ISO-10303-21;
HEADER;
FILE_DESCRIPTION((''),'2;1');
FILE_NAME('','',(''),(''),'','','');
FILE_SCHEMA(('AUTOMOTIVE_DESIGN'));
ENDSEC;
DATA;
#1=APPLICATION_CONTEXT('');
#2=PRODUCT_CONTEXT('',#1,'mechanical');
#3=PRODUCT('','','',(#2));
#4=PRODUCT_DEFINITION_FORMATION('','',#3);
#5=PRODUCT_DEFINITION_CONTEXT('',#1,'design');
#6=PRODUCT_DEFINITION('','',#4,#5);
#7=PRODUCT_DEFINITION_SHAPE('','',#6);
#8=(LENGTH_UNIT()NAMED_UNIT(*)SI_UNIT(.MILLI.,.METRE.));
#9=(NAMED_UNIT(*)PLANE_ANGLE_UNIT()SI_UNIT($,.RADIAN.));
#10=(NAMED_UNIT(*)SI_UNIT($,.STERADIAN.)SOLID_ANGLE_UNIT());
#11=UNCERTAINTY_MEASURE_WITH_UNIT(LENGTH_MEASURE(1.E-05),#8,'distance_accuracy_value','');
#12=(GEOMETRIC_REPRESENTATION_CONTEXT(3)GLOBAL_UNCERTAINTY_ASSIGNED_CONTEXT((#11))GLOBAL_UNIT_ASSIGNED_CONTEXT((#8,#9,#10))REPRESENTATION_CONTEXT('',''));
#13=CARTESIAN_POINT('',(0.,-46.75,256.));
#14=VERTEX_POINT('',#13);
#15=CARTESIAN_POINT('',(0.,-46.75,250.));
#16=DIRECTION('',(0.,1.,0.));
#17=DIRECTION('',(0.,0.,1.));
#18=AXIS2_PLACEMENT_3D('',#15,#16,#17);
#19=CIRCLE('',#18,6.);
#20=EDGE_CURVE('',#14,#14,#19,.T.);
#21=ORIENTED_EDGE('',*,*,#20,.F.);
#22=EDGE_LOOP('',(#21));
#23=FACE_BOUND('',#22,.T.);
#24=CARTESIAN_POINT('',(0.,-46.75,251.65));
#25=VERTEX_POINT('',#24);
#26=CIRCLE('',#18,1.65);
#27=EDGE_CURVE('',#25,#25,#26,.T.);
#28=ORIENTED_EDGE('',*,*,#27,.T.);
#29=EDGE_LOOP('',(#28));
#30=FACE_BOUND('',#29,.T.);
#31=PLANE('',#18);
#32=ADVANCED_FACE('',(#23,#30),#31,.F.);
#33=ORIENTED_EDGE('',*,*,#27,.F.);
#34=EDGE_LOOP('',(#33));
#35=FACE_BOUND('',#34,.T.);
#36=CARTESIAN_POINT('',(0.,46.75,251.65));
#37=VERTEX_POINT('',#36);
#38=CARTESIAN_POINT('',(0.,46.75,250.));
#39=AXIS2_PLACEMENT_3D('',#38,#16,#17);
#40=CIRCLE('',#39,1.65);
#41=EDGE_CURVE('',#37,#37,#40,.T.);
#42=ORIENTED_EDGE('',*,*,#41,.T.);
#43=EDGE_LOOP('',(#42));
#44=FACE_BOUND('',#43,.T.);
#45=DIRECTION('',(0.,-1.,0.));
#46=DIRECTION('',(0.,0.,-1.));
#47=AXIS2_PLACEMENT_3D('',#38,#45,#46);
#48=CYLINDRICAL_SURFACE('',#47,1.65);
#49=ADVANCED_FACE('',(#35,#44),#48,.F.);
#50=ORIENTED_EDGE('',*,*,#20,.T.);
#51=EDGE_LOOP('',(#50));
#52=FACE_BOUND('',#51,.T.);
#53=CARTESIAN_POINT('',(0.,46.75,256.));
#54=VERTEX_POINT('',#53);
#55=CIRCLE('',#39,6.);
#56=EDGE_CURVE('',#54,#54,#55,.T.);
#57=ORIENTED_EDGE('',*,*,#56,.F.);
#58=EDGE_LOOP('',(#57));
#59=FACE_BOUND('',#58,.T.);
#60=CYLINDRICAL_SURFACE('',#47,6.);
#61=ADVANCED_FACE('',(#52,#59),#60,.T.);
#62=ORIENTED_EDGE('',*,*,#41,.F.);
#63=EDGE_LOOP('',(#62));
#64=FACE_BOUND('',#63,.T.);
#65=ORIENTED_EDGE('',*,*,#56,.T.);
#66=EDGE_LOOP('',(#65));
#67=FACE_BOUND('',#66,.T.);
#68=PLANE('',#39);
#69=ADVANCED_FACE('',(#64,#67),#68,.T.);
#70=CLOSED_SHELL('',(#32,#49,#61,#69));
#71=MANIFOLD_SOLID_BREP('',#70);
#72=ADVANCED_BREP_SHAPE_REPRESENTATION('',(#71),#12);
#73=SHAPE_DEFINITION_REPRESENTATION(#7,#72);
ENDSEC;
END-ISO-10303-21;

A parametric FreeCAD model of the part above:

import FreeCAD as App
import Part
import Sketcher
from FreeCAD import Vector

doc = App.newDocument("Part")
body = doc.addObject("PartDesign::Body", "Body")

sketch1 = doc.addObject("Sketcher::SketchObject", "Sketch")
body.addObject(sketch1)
sketch1.AttachmentSupport = (doc.XZ_Plane, [""])
sketch1.MapMode = "FlatFace"
sketch1.AttachmentOffset = App.Placement(Vector(0, 0, 46.75), App.Rotation())
sketch1.addGeometry(Part.Circle(Vector(0, 250, 0), Vector(0, 0, 1), 6), False)
sketch1.addGeometry(Part.Circle(Vector(0, 250, 0), Vector(0, 0, 1), 1.65), False)
sketch1.addConstraint(Sketcher.Constraint("Coincident", 1, 3, 0, 3))
sketch1.addConstraint(Sketcher.Constraint("PointOnObject", 0, 3, -2))
sketch1.addConstraint(Sketcher.Constraint("Diameter", 0, 12.0))
sketch1.addConstraint(Sketcher.Constraint("Diameter", 1, 3.3))
sketch1.addConstraint(Sketcher.Constraint("DistanceY", -1, 1, 0, 3, 250.0))
pad1 = doc.addObject("PartDesign::Pad", "Pad")
body.addObject(pad1)
pad1.Profile = sketch1
pad1.Length = 93.5
pad1.Reversed = True

doc.recompute()
